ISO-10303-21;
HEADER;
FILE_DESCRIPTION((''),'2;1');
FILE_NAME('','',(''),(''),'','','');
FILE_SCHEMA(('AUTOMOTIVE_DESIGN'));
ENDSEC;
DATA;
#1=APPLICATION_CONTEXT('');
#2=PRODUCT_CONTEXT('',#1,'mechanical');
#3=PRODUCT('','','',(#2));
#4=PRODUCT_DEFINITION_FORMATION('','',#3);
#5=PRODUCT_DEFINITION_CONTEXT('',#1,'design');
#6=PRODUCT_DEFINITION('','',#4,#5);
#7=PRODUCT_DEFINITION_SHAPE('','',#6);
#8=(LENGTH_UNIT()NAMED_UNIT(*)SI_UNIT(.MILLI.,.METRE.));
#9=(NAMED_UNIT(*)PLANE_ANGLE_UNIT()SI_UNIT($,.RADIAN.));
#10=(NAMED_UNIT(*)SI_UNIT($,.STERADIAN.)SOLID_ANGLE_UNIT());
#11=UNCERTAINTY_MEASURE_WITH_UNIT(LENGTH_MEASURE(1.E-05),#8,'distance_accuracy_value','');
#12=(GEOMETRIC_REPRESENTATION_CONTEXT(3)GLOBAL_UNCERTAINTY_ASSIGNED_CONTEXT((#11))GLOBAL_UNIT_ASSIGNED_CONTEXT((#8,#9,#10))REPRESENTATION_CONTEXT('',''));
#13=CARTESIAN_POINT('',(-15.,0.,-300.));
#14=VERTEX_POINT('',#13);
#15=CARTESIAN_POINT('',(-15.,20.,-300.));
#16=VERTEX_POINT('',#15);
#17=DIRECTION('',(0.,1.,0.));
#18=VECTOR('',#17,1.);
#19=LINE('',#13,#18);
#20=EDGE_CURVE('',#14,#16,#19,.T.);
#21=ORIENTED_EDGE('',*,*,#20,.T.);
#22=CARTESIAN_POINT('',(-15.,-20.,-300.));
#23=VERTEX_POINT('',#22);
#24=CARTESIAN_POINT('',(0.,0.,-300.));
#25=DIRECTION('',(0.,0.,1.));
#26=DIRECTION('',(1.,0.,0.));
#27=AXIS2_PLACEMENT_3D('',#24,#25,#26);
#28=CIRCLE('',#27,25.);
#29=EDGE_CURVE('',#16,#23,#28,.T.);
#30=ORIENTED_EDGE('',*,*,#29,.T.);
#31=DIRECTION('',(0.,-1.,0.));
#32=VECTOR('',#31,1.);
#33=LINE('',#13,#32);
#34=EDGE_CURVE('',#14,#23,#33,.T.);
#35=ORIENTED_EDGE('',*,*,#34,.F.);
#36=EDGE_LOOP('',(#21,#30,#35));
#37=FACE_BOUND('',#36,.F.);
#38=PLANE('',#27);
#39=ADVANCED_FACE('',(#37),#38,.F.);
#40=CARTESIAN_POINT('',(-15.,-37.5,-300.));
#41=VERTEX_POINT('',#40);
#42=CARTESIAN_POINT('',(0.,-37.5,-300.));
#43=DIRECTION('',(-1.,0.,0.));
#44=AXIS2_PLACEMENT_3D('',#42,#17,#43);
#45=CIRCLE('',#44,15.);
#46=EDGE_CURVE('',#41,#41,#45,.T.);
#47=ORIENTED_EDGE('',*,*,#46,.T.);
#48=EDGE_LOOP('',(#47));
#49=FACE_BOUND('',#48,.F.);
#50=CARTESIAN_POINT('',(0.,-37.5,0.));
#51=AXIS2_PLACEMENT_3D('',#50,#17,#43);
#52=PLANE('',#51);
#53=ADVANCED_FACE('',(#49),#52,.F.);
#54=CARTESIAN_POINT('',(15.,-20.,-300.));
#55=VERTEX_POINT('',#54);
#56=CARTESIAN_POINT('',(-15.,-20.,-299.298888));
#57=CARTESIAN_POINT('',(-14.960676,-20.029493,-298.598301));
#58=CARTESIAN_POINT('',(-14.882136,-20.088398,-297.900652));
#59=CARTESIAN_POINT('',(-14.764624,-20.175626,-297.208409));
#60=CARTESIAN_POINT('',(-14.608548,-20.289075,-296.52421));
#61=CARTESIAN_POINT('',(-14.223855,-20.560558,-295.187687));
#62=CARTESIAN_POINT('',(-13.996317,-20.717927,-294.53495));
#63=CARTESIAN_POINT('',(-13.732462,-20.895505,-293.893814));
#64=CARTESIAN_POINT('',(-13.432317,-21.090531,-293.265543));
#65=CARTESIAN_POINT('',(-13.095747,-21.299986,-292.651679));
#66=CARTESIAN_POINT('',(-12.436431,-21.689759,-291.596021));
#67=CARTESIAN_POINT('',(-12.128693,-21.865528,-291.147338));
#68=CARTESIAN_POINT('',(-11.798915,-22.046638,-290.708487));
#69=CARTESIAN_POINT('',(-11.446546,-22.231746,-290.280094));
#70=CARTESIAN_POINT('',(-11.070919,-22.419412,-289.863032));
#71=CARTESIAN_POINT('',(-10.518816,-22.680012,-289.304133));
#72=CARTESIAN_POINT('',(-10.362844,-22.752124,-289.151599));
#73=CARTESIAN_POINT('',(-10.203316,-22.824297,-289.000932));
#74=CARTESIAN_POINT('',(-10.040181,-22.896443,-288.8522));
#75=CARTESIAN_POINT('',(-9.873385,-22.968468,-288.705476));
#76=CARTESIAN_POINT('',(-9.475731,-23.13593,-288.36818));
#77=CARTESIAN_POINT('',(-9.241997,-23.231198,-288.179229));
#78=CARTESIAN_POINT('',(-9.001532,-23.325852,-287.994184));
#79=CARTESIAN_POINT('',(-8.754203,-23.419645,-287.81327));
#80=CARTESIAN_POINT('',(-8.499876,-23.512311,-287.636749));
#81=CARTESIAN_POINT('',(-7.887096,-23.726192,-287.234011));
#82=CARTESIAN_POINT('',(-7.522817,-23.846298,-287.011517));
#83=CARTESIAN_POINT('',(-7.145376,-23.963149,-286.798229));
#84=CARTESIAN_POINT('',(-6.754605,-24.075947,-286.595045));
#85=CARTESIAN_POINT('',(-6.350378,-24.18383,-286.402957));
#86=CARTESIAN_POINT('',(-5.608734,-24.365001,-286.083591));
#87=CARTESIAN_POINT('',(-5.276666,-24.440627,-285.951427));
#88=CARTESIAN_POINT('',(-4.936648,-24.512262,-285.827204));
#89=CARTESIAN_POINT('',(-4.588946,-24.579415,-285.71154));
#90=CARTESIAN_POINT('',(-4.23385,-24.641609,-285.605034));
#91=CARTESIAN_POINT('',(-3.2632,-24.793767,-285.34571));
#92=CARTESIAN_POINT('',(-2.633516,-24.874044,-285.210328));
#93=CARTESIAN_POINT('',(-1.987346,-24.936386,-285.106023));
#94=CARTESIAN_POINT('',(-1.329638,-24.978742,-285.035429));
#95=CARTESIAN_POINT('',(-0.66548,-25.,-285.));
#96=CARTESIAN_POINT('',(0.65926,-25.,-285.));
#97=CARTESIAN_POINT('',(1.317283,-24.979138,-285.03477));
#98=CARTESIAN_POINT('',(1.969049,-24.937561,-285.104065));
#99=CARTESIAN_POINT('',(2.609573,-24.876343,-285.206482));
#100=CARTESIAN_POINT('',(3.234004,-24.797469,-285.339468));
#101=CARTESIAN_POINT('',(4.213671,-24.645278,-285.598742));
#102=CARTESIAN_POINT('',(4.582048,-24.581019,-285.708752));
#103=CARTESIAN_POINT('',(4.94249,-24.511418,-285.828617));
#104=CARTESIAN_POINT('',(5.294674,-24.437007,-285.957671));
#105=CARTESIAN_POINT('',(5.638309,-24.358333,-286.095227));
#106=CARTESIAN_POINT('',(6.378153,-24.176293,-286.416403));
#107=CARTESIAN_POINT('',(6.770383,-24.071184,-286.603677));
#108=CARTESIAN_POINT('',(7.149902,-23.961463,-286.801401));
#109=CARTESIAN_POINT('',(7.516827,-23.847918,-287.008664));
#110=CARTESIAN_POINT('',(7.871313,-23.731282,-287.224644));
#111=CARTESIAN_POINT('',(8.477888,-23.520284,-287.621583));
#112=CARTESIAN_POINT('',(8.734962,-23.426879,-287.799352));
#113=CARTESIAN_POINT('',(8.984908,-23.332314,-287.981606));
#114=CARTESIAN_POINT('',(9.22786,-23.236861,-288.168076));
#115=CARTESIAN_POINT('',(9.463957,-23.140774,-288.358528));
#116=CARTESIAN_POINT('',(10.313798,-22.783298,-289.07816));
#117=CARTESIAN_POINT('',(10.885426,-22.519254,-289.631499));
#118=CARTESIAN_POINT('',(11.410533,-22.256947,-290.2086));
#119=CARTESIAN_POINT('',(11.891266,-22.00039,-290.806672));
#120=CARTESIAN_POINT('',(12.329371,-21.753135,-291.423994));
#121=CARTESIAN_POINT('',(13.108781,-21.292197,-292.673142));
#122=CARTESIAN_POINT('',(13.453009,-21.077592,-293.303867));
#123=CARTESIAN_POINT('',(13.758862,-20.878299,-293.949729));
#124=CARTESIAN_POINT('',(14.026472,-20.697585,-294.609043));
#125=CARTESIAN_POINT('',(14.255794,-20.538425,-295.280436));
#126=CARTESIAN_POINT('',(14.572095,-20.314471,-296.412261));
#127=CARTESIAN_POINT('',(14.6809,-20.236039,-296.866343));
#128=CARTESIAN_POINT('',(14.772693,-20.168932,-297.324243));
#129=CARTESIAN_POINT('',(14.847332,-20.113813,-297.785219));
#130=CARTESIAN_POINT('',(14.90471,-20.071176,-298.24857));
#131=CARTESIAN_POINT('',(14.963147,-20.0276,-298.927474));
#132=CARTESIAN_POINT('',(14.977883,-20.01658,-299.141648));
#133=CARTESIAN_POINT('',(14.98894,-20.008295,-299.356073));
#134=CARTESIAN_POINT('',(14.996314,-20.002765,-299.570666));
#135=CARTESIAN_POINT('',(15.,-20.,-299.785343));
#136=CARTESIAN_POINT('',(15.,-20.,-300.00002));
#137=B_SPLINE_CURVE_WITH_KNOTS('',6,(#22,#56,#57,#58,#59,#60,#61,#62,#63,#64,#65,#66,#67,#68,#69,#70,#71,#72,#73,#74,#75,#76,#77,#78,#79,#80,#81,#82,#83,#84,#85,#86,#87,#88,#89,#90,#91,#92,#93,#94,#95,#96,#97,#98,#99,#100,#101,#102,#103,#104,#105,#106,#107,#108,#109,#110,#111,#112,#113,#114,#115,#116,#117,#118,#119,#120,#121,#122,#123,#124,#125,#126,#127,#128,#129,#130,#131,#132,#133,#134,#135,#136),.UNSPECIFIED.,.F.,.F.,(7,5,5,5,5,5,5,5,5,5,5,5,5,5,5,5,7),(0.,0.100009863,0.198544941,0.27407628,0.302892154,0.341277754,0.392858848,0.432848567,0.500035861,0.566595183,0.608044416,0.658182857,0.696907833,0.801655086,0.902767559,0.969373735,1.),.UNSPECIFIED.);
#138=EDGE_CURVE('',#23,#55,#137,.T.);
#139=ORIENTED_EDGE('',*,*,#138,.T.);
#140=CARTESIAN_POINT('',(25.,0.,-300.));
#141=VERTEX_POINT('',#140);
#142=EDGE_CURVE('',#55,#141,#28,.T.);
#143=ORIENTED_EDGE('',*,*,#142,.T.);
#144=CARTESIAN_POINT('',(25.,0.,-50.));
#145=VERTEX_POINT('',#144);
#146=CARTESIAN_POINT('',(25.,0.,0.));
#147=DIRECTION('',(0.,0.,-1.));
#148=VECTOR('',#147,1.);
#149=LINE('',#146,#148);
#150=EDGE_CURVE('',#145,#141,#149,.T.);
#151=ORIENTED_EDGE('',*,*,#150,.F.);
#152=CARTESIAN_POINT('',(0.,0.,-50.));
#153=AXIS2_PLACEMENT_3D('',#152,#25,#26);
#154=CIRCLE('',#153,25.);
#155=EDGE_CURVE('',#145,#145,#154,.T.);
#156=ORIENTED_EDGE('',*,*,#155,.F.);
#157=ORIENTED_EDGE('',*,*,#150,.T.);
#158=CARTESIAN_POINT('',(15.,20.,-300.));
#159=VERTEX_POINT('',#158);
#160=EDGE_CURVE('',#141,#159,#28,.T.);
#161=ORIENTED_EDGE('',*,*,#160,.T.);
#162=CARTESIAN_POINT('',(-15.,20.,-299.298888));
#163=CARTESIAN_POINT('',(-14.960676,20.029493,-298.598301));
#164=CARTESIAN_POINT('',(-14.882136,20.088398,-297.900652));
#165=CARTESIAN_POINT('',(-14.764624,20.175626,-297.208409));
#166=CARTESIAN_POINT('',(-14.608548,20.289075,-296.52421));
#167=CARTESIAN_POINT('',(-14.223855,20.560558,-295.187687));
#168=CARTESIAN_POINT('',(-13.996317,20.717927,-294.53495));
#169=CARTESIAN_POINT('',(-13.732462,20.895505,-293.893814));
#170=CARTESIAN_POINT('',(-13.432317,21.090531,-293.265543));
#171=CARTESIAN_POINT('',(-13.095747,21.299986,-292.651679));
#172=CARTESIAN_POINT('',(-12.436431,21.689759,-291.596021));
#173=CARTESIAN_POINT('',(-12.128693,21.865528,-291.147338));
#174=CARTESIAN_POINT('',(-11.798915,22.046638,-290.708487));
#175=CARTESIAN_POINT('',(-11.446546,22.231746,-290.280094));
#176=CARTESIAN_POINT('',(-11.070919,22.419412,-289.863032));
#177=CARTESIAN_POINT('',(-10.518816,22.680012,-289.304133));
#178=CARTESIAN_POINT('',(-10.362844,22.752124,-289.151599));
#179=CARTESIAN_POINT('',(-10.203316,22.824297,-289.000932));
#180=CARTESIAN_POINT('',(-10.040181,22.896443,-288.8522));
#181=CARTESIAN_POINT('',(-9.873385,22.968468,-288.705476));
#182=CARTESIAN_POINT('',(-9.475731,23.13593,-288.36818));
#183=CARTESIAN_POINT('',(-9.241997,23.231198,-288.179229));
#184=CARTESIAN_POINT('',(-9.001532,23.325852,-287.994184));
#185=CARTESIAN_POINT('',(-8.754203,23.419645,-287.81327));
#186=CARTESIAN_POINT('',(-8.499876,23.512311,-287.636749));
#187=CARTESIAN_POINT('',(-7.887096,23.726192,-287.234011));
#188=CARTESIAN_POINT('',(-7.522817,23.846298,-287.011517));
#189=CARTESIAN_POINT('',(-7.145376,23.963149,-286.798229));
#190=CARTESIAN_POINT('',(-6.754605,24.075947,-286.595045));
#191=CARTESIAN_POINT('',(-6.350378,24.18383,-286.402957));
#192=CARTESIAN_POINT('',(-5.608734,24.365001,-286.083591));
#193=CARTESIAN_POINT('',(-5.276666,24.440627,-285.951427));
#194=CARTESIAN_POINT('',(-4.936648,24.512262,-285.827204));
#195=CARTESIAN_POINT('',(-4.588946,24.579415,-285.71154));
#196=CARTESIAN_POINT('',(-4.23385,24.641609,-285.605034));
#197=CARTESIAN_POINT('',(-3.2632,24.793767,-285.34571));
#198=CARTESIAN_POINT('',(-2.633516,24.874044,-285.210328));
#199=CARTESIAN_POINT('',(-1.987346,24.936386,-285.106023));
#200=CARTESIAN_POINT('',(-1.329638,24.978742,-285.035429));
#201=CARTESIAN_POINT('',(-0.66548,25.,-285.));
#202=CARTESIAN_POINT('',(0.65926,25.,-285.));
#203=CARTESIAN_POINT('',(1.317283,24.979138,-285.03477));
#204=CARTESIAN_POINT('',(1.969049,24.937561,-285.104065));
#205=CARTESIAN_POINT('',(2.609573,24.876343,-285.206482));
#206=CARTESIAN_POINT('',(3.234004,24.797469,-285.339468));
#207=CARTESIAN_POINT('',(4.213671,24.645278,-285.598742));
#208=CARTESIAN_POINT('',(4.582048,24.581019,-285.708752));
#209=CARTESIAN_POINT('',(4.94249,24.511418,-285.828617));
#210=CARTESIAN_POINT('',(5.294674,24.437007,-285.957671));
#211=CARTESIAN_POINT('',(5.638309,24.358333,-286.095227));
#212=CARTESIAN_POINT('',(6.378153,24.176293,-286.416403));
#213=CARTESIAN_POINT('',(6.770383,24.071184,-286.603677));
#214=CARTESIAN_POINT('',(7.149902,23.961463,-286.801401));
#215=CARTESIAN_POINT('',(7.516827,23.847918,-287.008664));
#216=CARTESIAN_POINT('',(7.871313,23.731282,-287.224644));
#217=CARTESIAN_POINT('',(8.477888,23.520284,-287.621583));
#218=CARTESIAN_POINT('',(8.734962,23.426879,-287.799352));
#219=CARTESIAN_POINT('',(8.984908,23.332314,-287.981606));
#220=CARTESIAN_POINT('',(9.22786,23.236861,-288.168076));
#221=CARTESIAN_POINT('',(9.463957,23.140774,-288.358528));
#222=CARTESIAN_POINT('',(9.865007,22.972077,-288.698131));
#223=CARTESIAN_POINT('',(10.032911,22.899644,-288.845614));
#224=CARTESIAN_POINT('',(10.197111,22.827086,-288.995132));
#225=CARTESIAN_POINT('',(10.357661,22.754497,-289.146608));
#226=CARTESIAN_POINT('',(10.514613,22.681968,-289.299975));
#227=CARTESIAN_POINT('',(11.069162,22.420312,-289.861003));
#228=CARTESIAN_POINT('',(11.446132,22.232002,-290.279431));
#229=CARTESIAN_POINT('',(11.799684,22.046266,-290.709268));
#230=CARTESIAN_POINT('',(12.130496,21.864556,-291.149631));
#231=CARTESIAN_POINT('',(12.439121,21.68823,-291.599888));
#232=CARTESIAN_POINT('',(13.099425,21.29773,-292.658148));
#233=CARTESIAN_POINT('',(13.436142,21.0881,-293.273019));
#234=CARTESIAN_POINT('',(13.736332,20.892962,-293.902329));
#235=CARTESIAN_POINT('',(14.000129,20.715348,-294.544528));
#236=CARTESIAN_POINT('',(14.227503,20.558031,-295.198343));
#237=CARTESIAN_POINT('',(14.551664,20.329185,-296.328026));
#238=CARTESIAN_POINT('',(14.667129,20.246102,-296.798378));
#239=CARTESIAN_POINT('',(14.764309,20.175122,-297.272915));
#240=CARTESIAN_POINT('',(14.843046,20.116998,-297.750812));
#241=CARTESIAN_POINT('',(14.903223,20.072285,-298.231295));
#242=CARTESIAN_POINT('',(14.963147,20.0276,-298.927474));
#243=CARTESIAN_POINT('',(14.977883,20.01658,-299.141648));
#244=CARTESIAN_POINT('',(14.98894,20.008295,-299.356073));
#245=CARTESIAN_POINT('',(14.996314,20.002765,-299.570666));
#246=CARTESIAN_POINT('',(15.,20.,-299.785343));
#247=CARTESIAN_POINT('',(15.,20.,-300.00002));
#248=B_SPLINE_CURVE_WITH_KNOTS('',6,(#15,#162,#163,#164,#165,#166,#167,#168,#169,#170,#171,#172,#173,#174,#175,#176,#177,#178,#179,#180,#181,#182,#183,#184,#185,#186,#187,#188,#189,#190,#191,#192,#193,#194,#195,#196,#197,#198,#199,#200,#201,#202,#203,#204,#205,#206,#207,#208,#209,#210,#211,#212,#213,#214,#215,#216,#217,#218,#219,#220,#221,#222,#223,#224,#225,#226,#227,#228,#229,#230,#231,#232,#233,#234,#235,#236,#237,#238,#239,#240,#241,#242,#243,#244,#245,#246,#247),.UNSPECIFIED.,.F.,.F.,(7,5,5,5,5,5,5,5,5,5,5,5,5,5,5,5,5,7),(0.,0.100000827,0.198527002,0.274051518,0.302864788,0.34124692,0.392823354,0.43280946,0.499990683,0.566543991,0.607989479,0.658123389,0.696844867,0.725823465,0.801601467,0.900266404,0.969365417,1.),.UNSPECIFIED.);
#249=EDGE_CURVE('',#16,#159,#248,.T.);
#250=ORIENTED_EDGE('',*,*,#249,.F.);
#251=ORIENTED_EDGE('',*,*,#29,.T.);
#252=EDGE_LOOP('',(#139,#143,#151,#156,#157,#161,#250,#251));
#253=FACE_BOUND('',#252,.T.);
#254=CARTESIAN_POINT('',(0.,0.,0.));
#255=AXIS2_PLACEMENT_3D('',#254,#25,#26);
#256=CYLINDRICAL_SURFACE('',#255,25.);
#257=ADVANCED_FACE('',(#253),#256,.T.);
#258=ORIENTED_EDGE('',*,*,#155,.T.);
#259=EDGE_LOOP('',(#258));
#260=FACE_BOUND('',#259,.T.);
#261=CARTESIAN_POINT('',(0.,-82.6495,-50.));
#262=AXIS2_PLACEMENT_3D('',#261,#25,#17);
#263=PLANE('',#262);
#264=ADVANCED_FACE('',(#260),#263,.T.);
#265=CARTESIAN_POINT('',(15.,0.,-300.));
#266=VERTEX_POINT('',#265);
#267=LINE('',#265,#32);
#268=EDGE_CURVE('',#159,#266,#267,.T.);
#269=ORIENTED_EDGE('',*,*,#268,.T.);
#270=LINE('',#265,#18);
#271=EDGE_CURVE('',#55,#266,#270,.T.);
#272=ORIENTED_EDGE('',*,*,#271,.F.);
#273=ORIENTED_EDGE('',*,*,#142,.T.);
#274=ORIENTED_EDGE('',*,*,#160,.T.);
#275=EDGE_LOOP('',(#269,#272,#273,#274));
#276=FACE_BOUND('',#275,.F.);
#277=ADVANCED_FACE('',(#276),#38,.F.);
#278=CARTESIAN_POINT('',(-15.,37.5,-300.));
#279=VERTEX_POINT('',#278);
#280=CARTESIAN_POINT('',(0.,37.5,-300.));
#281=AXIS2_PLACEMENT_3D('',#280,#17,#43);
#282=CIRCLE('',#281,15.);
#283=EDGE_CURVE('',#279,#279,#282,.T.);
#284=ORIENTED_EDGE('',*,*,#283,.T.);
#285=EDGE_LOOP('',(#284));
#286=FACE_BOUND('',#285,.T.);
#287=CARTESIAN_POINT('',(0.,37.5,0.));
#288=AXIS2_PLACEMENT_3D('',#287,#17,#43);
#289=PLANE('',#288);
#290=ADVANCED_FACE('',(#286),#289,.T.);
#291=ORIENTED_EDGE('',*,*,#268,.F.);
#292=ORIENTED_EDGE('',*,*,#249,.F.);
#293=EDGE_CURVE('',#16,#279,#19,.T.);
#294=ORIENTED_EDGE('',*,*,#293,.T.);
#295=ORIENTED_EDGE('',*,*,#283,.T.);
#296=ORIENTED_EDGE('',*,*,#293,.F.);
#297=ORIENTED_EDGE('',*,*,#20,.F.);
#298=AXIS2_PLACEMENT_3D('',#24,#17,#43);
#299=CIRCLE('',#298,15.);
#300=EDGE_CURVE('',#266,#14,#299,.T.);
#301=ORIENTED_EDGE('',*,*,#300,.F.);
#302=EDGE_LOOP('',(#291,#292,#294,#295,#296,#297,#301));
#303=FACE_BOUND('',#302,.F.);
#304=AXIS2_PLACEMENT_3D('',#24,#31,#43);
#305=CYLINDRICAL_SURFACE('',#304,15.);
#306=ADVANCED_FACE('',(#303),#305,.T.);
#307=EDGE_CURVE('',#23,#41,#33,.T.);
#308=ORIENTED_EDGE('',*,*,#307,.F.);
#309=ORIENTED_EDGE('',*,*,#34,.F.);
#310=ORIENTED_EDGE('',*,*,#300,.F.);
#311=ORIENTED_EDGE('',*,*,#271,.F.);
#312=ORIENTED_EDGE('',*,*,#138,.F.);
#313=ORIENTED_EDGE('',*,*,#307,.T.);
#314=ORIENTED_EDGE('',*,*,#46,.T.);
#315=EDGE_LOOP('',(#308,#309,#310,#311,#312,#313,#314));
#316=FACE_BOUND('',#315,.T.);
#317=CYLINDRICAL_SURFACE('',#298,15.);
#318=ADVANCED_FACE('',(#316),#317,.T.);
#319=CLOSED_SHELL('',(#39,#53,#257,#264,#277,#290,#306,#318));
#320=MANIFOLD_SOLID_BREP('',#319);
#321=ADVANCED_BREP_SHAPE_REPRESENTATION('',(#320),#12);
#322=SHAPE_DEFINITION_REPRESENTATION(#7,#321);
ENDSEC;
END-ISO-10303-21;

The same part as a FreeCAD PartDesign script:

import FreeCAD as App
import Part
import Sketcher

V = App.Vector

doc = App.newDocument("Part")
body = doc.addObject("PartDesign::Body", "Body")

# Sketch on XY plane
sketch1 = doc.addObject("Sketcher::SketchObject", "Sketch")
body.addObject(sketch1)
sketch1.AttachmentSupport = (doc.XY_Plane, [""])
sketch1.MapMode = "FlatFace"
sketch1.addGeometry(Part.Circle(V(0, 0, 0), V(0, 0, 1), 25), False)
sketch1.addConstraint([
    Sketcher.Constraint("Coincident", 0, 3, -1, 1),
    Sketcher.Constraint("Diameter", 0, 50.0),
])
pad1 = doc.addObject("PartDesign::Pad", "Pad")
body.addObject(pad1)
pad1.Profile = sketch1
pad1.Length = 300
pad1.Reversed = True

# Sketch on YZ plane
sketch2 = doc.addObject("Sketcher::SketchObject", "Sketch001")
body.addObject(sketch2)
sketch2.AttachmentSupport = (doc.YZ_Plane, [""])
sketch2.MapMode = "FlatFace"
sketch2.addGeometry([
    Part.LineSegment(V(82, 98, 0), V(-83, 98, 0)),
    Part.LineSegment(V(-83, 98, 0), V(-83, -50, 0)),
    Part.LineSegment(V(-83, -50, 0), V(82, -50, 0)),
    Part.LineSegment(V(82, -50, 0), V(82, 98, 0)),
], False)
sketch2.addConstraint([
    Sketcher.Constraint("Coincident", 0, 2, 1, 1),
    Sketcher.Constraint("Coincident", 1, 2, 2, 1),
    Sketcher.Constraint("Coincident", 2, 2, 3, 1),
    Sketcher.Constraint("Coincident", 3, 2, 0, 1),
    Sketcher.Constraint("Horizontal", 0),
    Sketcher.Constraint("Vertical", 1),
    Sketcher.Constraint("Horizontal", 2),
    Sketcher.Constraint("Vertical", 3),
    Sketcher.Constraint("DistanceY", 1, 2, -1, 1, 50.0),
    Sketcher.Constraint("DistanceX", 0, 2, 0, 1, 164.717),
    Sketcher.Constraint("DistanceY", 1, 2, 1, 1, 148.3645),
    Sketcher.Constraint("DistanceX", 0, 2, -1, 1, 82.6495),
])
pocket1 = doc.addObject("PartDesign::Pocket", "Pocket")
body.addObject(pocket1)
pocket1.Profile = sketch2
pocket1.Length = 300
pocket1.Midplane = True

# Sketch on XZ plane
sketch3 = doc.addObject("Sketcher::SketchObject", "Sketch002")
body.addObject(sketch3)
sketch3.AttachmentSupport = (doc.XZ_Plane, [""])
sketch3.MapMode = "FlatFace"
sketch3.addGeometry(Part.Circle(V(0, -300, 0), V(0, 0, 1), 15), False)
sketch3.addConstraint([
    Sketcher.Constraint("PointOnObject", 0, 3, -2),
    Sketcher.Constraint("Diameter", 0, 30.0),
    Sketcher.Constraint("DistanceY", 0, 3, -1, 1, 300.0),
])
pad2 = doc.addObject("PartDesign::Pad", "Pad001")
body.addObject(pad2)
pad2.Profile = sketch3
pad2.Length = 75
pad2.Midplane = True

doc.recompute()
